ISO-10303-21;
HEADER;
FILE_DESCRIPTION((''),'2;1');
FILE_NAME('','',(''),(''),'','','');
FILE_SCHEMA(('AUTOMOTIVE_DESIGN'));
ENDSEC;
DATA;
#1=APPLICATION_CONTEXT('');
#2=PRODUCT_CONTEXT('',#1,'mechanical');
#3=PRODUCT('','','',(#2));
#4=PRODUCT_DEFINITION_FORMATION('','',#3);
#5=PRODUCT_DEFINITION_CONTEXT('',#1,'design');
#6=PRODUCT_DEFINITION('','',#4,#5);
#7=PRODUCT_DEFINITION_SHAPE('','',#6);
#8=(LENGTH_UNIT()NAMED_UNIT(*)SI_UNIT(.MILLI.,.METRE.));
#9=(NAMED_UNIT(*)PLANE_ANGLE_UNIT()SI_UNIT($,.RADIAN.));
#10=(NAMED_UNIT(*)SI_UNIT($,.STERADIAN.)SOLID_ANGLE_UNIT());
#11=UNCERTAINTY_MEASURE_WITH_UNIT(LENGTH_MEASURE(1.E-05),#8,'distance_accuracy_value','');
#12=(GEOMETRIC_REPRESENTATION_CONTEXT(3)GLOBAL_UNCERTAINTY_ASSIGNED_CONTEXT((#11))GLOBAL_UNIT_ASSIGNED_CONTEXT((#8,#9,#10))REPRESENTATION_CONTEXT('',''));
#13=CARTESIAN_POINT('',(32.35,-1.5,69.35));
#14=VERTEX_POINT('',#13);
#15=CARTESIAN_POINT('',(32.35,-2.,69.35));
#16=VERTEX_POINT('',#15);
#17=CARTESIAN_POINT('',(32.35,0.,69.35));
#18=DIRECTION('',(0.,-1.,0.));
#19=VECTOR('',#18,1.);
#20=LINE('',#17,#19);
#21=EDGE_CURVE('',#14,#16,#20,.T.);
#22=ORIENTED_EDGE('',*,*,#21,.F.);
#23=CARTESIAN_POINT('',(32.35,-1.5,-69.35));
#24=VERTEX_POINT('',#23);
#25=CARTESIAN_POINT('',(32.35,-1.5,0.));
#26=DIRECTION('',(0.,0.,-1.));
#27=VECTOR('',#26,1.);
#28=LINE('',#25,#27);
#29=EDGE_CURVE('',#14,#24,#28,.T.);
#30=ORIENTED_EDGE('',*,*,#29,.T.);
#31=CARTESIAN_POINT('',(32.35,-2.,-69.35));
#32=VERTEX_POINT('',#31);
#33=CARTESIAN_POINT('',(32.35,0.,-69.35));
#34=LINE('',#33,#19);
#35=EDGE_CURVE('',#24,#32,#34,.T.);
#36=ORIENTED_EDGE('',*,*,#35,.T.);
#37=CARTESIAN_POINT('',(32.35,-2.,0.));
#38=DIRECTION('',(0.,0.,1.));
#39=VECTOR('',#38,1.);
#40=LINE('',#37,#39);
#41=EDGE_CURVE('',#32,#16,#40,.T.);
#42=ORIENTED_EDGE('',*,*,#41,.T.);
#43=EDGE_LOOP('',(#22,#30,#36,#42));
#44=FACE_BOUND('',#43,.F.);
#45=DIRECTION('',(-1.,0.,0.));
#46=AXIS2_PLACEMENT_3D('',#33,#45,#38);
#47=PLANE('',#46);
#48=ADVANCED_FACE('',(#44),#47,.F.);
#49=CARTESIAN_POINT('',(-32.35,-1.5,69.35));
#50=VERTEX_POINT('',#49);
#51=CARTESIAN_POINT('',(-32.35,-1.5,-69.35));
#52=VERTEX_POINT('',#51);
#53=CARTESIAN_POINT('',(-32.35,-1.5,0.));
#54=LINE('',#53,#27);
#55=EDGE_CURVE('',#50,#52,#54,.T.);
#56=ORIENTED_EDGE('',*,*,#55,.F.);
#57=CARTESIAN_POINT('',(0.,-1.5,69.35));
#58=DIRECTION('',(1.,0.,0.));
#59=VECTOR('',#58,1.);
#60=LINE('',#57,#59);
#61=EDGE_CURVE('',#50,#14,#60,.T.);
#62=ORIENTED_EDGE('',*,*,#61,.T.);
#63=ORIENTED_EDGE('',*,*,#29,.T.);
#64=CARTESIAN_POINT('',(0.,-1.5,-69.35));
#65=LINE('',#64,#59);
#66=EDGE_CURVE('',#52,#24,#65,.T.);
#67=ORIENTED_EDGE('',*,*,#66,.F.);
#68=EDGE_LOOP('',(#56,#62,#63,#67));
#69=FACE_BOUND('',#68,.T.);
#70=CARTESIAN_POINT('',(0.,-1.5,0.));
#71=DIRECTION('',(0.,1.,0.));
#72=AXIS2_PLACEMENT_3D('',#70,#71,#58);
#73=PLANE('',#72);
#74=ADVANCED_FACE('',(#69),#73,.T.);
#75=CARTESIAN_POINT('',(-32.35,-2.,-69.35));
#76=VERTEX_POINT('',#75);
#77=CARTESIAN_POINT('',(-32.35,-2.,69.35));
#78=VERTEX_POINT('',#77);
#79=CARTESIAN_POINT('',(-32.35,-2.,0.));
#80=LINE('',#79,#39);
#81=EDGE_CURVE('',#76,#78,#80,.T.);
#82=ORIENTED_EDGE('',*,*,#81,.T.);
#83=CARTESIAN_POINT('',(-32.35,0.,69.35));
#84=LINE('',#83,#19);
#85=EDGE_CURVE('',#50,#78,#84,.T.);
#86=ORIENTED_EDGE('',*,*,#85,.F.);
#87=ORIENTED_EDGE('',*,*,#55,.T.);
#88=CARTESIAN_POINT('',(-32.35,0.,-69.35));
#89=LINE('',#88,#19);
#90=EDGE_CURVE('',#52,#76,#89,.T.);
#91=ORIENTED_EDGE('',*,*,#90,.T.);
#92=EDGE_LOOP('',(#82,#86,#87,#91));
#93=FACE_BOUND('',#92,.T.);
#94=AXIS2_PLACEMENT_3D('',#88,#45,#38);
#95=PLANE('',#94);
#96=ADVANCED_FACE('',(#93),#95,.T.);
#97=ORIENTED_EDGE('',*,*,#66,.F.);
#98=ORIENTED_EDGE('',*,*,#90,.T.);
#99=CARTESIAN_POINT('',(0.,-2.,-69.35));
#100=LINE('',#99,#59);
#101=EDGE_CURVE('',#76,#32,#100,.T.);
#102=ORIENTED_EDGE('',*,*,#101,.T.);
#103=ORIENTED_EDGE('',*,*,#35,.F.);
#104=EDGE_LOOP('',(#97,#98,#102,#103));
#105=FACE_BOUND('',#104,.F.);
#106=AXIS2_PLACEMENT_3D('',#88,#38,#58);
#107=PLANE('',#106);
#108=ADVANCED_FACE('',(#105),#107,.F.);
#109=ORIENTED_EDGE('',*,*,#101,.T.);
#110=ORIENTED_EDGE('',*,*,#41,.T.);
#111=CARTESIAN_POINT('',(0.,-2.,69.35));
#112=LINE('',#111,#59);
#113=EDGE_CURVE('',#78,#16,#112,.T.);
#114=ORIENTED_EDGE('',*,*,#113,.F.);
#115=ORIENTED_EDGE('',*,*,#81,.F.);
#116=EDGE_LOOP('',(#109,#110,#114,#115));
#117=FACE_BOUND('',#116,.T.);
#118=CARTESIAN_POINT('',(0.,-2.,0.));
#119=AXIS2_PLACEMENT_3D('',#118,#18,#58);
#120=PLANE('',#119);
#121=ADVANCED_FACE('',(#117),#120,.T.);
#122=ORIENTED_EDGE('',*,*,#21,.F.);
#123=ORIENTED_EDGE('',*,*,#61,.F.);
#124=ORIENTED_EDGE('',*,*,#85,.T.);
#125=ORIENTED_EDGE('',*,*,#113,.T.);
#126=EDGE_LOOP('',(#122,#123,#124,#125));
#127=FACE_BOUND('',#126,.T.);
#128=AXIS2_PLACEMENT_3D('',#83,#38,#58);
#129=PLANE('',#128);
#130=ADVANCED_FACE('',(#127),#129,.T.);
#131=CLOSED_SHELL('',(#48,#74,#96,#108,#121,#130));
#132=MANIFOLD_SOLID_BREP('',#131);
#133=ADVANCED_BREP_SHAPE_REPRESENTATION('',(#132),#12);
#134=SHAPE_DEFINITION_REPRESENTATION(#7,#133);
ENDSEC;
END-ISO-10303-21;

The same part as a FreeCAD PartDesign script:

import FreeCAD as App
import Part
import Sketcher

V = App.Vector
Q = App.Units.Quantity

doc = App.newDocument("Part")
params = doc.addObject("Spreadsheet::Sheet", "Params")
for row, (alias, value) in enumerate([
    ("sketch1_width", "64.7 mm"),
    ("sketch1_height", "138.7 mm"),
    ("pad1_length", "2 mm"),
    ("sketch2_width", "64.7 mm"),
    ("sketch2_height", "138.7 mm"),
    ("pocket1_length", "1.5 mm"),
], start=1):
    params.set(f"A{row}", alias)
    params.set(f"B{row}", "=" + value)
    params.setAlias(f"B{row}", alias)

body = doc.addObject("PartDesign::Body", "Body")

# Sketch on XZ plane
sketch1 = doc.addObject("Sketcher::SketchObject", "Sketch")
body.addObject(sketch1)
sketch1.AttachmentSupport = (doc.XZ_Plane, [""])
sketch1.MapMode = "FlatFace"
sketch1.addGeometry([
    Part.LineSegment(V(-32, 69, 0), V(-32, -69, 0)),
    Part.LineSegment(V(-32, -69, 0), V(32, -69, 0)),
    Part.LineSegment(V(32, -69, 0), V(32, 69, 0)),
    Part.LineSegment(V(32, 69, 0), V(-32, 69, 0)),
], False)
sketch1.addConstraint([
    Sketcher.Constraint("Coincident", 0, 2, 1, 1),
    Sketcher.Constraint("Coincident", 1, 2, 2, 1),
    Sketcher.Constraint("Coincident", 2, 2, 3, 1),
    Sketcher.Constraint("Coincident", 3, 2, 0, 1),
    Sketcher.Constraint("Vertical", 0),
    Sketcher.Constraint("Horizontal", 1),
    Sketcher.Constraint("Vertical", 2),
    Sketcher.Constraint("Horizontal", 3),
    Sketcher.Constraint("Symmetric", 0, 2, 2, 2, -1, 1),
    Sketcher.Constraint("DistanceX", 1, 1, 1, 2, Q("64.7 mm")),
    Sketcher.Constraint("DistanceY", 0, 2, 0, 1, Q("138.7 mm")),
])
sketch1.setExpression("Constraints[9]", "Params.sketch1_width")
sketch1.setExpression("Constraints[10]", "Params.sketch1_height")
pad1 = doc.addObject("PartDesign::Pad", "Pad")
body.addObject(pad1)
pad1.Profile = sketch1
pad1.setExpression("Length", "Params.pad1_length")

# Sketch on XZ plane
sketch2 = doc.addObject("Sketcher::SketchObject", "Sketch001")
body.addObject(sketch2)
sketch2.AttachmentSupport = (doc.XZ_Plane, [""])
sketch2.MapMode = "FlatFace"
sketch2.addGeometry([
    Part.LineSegment(V(-32, -69, 0), V(-32, 69, 0)),
    Part.LineSegment(V(-32, 69, 0), V(32, 69, 0)),
    Part.LineSegment(V(32, 69, 0), V(32, -69, 0)),
    Part.LineSegment(V(32, -69, 0), V(-32, -69, 0)),
], False)
sketch2.addConstraint([
    Sketcher.Constraint("Coincident", 0, 2, 1, 1),
    Sketcher.Constraint("Coincident", 1, 2, 2, 1),
    Sketcher.Constraint("Coincident", 2, 2, 3, 1),
    Sketcher.Constraint("Coincident", 3, 2, 0, 1),
    Sketcher.Constraint("Vertical", 0),
    Sketcher.Constraint("Horizontal", 1),
    Sketcher.Constraint("Vertical", 2),
    Sketcher.Constraint("Horizontal", 3),
    Sketcher.Constraint("Symmetric", 0, 2, 2, 2, -1, 1),
    Sketcher.Constraint("DistanceX", 1, 1, 1, 2, Q("64.7 mm")),
    Sketcher.Constraint("DistanceY", 0, 1, 0, 2, Q("138.7 mm")),
])
sketch2.setExpression("Constraints[9]", "Params.sketch2_width")
sketch2.setExpression("Constraints[10]", "Params.sketch2_height")
pocket1 = doc.addObject("PartDesign::Pocket", "Pocket")
body.addObject(pocket1)
pocket1.Profile = sketch2
pocket1.setExpression("Length", "Params.pocket1_length")
pocket1.Reversed = True

doc.recompute()
